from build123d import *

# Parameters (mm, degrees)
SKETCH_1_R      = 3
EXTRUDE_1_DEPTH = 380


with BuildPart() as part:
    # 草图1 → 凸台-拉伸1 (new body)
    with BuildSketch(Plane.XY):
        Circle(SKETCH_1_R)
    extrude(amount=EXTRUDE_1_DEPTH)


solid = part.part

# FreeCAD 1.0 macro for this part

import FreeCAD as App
import Part
import Sketcher
from FreeCAD import Vector

doc = App.newDocument("Part")
params = doc.addObject("Spreadsheet::Sheet", "Params")
for row, (alias, value) in enumerate([
    ("sketch1_diameter", "6 mm"),
    ("pad1_length", "380 mm"),
], start=1):
    params.set(f"A{row}", alias)
    params.set(f"B{row}", "=" + value)
    params.setAlias(f"B{row}", alias)

body = doc.addObject("PartDesign::Body", "Body")

# Sketch on XY plane
sketch1 = body.newObject("Sketcher::SketchObject", "Sketch")
sketch1.AttachmentSupport = (doc.getObject("XY_Plane"), [""])
sketch1.MapMode = "FlatFace"
sketch1.addGeometry(Part.Circle(Vector(0, 0, 0), Vector(0, 0, 1), 3), False)
sketch1.addConstraint([
    Sketcher.Constraint("Coincident", 0, 3, -1, 1),
    Sketcher.Constraint("Diameter", 0, 6.0),
])
sketch1.setExpression("Constraints[1]", "Params.sketch1_diameter")
pad1 = body.newObject("PartDesign::Pad", "Pad")
pad1.Profile = sketch1
pad1.setExpression("Length", "Params.pad1_length")

doc.recompute()
